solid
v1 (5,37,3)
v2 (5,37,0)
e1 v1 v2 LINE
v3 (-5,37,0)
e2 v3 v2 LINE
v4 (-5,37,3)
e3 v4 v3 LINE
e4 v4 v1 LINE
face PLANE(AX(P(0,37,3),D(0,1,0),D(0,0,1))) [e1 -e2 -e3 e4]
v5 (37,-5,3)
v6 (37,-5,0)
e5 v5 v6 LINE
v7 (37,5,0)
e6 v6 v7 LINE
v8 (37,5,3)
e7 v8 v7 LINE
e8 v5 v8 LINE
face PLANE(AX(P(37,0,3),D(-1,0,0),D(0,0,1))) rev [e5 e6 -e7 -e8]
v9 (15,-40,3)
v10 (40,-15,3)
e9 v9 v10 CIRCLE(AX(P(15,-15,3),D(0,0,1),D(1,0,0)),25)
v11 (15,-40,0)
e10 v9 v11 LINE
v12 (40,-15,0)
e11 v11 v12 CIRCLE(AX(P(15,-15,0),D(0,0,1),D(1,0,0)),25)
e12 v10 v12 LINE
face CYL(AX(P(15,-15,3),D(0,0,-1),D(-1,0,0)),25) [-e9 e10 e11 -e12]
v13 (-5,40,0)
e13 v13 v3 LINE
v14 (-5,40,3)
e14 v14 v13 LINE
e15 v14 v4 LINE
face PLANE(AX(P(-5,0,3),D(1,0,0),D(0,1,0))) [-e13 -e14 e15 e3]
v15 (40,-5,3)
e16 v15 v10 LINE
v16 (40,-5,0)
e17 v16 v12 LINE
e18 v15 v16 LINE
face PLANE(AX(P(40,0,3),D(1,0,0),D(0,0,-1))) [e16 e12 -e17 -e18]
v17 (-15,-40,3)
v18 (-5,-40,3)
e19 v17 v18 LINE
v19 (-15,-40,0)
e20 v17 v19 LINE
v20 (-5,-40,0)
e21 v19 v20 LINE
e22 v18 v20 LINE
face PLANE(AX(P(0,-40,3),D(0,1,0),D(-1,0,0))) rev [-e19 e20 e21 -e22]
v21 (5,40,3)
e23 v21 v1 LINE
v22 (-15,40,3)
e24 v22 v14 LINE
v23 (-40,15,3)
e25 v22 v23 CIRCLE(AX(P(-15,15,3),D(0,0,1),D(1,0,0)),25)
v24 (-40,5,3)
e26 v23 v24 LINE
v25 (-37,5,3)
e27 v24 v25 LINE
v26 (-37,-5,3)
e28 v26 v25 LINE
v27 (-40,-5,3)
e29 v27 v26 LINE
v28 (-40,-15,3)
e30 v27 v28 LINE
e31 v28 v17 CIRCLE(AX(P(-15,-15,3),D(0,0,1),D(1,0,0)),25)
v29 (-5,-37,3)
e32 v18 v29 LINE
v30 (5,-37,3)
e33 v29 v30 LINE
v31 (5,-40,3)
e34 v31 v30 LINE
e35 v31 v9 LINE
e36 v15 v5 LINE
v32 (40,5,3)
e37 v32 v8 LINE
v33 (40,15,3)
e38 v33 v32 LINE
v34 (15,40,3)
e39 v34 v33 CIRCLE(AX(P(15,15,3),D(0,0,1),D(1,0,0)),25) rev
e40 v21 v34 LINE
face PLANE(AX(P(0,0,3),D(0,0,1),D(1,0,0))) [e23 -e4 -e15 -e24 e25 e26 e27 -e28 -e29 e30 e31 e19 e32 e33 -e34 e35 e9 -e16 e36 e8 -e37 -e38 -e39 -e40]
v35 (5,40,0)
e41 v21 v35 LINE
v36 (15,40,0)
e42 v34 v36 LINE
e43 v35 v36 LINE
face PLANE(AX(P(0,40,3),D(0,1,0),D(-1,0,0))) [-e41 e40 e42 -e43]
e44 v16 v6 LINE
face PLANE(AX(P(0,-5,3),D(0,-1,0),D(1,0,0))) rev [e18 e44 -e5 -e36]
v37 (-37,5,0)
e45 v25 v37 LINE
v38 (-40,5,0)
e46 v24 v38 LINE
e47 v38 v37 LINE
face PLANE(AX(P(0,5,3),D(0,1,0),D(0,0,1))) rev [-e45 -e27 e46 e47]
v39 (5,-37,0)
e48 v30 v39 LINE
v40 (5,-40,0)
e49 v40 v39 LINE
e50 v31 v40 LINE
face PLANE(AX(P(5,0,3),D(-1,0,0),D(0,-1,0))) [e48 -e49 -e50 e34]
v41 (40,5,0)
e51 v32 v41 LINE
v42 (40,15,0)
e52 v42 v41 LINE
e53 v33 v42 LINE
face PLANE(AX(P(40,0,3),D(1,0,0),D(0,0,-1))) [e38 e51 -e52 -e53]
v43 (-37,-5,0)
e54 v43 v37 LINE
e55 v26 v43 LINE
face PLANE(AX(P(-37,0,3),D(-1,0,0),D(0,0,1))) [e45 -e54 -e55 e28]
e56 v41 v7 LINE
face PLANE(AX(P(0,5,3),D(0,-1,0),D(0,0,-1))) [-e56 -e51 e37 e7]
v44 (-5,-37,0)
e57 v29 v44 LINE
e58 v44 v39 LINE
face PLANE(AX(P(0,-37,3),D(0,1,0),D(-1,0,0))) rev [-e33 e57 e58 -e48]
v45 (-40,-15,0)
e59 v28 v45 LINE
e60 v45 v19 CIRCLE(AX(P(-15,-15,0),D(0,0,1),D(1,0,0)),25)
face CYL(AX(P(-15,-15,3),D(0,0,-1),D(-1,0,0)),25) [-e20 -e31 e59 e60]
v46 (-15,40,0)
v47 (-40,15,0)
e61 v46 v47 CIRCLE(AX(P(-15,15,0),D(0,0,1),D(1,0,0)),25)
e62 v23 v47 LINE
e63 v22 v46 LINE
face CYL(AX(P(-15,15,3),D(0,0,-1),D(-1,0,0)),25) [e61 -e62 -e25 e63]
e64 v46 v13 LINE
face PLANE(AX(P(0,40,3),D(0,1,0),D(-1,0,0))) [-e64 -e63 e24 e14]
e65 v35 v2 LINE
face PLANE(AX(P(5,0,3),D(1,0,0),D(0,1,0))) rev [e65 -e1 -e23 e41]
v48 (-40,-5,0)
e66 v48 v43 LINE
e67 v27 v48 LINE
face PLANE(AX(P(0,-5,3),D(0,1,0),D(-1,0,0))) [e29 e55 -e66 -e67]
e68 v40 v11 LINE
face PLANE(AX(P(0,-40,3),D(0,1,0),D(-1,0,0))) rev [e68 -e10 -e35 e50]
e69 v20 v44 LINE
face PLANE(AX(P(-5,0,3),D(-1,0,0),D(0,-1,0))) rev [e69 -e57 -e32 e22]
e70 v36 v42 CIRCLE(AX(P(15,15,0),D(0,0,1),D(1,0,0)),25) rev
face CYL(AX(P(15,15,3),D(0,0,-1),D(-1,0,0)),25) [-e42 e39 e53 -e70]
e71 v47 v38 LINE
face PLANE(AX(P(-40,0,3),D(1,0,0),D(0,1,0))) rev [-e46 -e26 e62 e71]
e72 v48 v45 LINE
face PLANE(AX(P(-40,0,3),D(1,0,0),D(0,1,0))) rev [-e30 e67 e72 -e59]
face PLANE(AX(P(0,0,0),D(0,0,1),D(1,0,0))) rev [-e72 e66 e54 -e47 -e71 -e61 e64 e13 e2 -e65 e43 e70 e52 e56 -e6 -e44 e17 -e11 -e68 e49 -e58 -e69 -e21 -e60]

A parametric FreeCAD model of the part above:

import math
import FreeCAD as App
import Part
import Sketcher
from FreeCAD import Vector

doc = App.newDocument("Part")
body = doc.addObject("PartDesign::Body", "Body")

# Sketch on XY plane
sketch1 = body.newObject("Sketcher::SketchObject", "Sketch")
sketch1.AttachmentSupport = (doc.getObject("XY_Plane"), [""])
sketch1.MapMode = "FlatFace"
sketch1.addGeometry(Part.LineSegment(Vector(-5, 40, 0), Vector(-15, 40, 0)), False)
sketch1.addGeometry(Part.ArcOfCircle(Part.Circle(Vector(-15, 15, 0), Vector(0, 0, 1), 25), math.radians(90), math.radians(180)), False)
sketch1.addGeometry(Part.LineSegment(Vector(-40, 15, 0), Vector(-40, 5, 0)), False)
sketch1.addGeometry(Part.LineSegment(Vector(-40, 5, 0), Vector(-37, 5, 0)), False)
sketch1.addGeometry(Part.LineSegment(Vector(-37, 5, 0), Vector(-37, -5, 0)), False)
sketch1.addGeometry(Part.LineSegment(Vector(-37, -5, 0), Vector(-40, -5, 0)), False)
sketch1.addGeometry(Part.LineSegment(Vector(-40, -5, 0), Vector(-40, -15, 0)), False)
sketch1.addGeometry(Part.ArcOfCircle(Part.Circle(Vector(-15, -15, 0), Vector(0, 0, 1), 25), math.radians(180), math.radians(270)), False)
sketch1.addGeometry(Part.LineSegment(Vector(-15, -40, 0), Vector(-5, -40, 0)), False)
sketch1.addGeometry(Part.LineSegment(Vector(-5, -40, 0), Vector(-5, -37, 0)), False)
sketch1.addGeometry(Part.LineSegment(Vector(-5, -37, 0), Vector(5, -37, 0)), False)
sketch1.addGeometry(Part.LineSegment(Vector(5, -37, 0), Vector(5, -40, 0)), False)
sketch1.addGeometry(Part.LineSegment(Vector(5, -40, 0), Vector(15, -40, 0)), False)
sketch1.addGeometry(Part.ArcOfCircle(Part.Circle(Vector(15, -15, 0), Vector(0, 0, 1), 25), math.radians(-90), math.radians(0)), False)
sketch1.addGeometry(Part.LineSegment(Vector(40, -15, 0), Vector(40, -5, 0)), False)
sketch1.addGeometry(Part.LineSegment(Vector(40, -5, 0), Vector(37, -5, 0)), False)
sketch1.addGeometry(Part.LineSegment(Vector(37, -5, 0), Vector(37, 5, 0)), False)
sketch1.addGeometry(Part.LineSegment(Vector(37, 5, 0), Vector(40, 5, 0)), False)
sketch1.addGeometry(Part.LineSegment(Vector(40, 5, 0), Vector(40, 15, 0)), False)
sketch1.addGeometry(Part.ArcOfCircle(Part.Circle(Vector(15, 15, 0), Vector(0, 0, 1), 25), math.radians(0), math.radians(90)), False)
sketch1.addGeometry(Part.LineSegment(Vector(15, 40, 0), Vector(5, 40, 0)), False)
sketch1.addGeometry(Part.LineSegment(Vector(5, 40, 0), Vector(5, 37, 0)), False)
sketch1.addGeometry(Part.LineSegment(Vector(5, 37, 0), Vector(-5, 37, 0)), False)
sketch1.addGeometry(Part.LineSegment(Vector(-5, 37, 0), Vector(-5, 40, 0)), False)
sketch1.addConstraint(Sketcher.Constraint("Tangent", 0, 2, 1, 1))
sketch1.addConstraint(Sketcher.Constraint("Tangent", 1, 2, 2, 1))
sketch1.addConstraint(Sketcher.Constraint("Coincident", 2, 2, 3, 1))
sketch1.addConstraint(Sketcher.Constraint("Coincident", 3, 2, 4, 1))
sketch1.addConstraint(Sketcher.Constraint("Coincident", 4, 2, 5, 1))
sketch1.addConstraint(Sketcher.Constraint("Coincident", 5, 2, 6, 1))
sketch1.addConstraint(Sketcher.Constraint("Tangent", 6, 2, 7, 1))
sketch1.addConstraint(Sketcher.Constraint("Tangent", 7, 2, 8, 1))
sketch1.addConstraint(Sketcher.Constraint("Coincident", 8, 2, 9, 1))
sketch1.addConstraint(Sketcher.Constraint("Coincident", 9, 2, 10, 1))
sketch1.addConstraint(Sketcher.Constraint("Coincident", 10, 2, 11, 1))
sketch1.addConstraint(Sketcher.Constraint("Coincident", 11, 2, 12, 1))
sketch1.addConstraint(Sketcher.Constraint("Tangent", 12, 2, 13, 1))
sketch1.addConstraint(Sketcher.Constraint("Tangent", 13, 2, 14, 1))
sketch1.addConstraint(Sketcher.Constraint("Coincident", 14, 2, 15, 1))
sketch1.addConstraint(Sketcher.Constraint("Coincident", 15, 2, 16, 1))
sketch1.addConstraint(Sketcher.Constraint("Coincident", 16, 2, 17, 1))
sketch1.addConstraint(Sketcher.Constraint("Coincident", 17, 2, 18, 1))
sketch1.addConstraint(Sketcher.Constraint("Tangent", 18, 2, 19, 1))
sketch1.addConstraint(Sketcher.Constraint("Tangent", 19, 2, 20, 1))
sketch1.addConstraint(Sketcher.Constraint("Coincident", 20, 2, 21, 1))
sketch1.addConstraint(Sketcher.Constraint("Coincident", 21, 2, 22, 1))
sketch1.addConstraint(Sketcher.Constraint("Coincident", 22, 2, 23, 1))
sketch1.addConstraint(Sketcher.Constraint("Coincident", 23, 2, 0, 1))
sketch1.addConstraint(Sketcher.Constraint("Horizontal", 0))
sketch1.addConstraint(Sketcher.Constraint("Vertical", 2))
sketch1.addConstraint(Sketcher.Constraint("Horizontal", 3))
sketch1.addConstraint(Sketcher.Constraint("Vertical", 4))
sketch1.addConstraint(Sketcher.Constraint("Horizontal", 5))
sketch1.addConstraint(Sketcher.Constraint("Vertical", 6))
sketch1.addConstraint(Sketcher.Constraint("Horizontal", 8))
sketch1.addConstraint(Sketcher.Constraint("Vertical", 9))
sketch1.addConstraint(Sketcher.Constraint("Horizontal", 10))
sketch1.addConstraint(Sketcher.Constraint("Vertical", 11))
sketch1.addConstraint(Sketcher.Constraint("Horizontal", 12))
sketch1.addConstraint(Sketcher.Constraint("Vertical", 14))
sketch1.addConstraint(Sketcher.Constraint("Horizontal", 15))
sketch1.addConstraint(Sketcher.Constraint("Vertical", 16))
sketch1.addConstraint(Sketcher.Constraint("Horizontal", 17))
sketch1.addConstraint(Sketcher.Constraint("Vertical", 18))
sketch1.addConstraint(Sketcher.Constraint("Horizontal", 20))
sketch1.addConstraint(Sketcher.Constraint("Vertical", 21))
sketch1.addConstraint(Sketcher.Constraint("Horizontal", 22))
sketch1.addConstraint(Sketcher.Constraint("Vertical", 23))
sketch1.addConstraint(Sketcher.Constraint("Equal", 1, 7))
sketch1.addConstraint(Sketcher.Constraint("Equal", 7, 13))
sketch1.addConstraint(Sketcher.Constraint("Equal", 13, 19))
sketch1.addConstraint(Sketcher.Constraint("Symmetric", 1, 3, 13, 3, -1, 1))
sketch1.addConstraint(Sketcher.Constraint("Symmetric", 7, 3, 19, 3, -1, 1))
sketch1.addConstraint(Sketcher.Constraint("Symmetric", 3, 2, 15, 2, -1, 1))
sketch1.addConstraint(Sketcher.Constraint("Symmetric", 9, 2, 21, 2, -1, 1))
sketch1.addConstraint(Sketcher.Constraint("Symmetric", 7, 3, 13, 3, -2))
sketch1.addConstraint(Sketcher.Constraint("Horizontal", 5, 2, 14, 2))
sketch1.addConstraint(Sketcher.Constraint("Horizontal", 3, 2, 16, 2))
sketch1.addConstraint(Sketcher.Constraint("Vertical", 11, 2, 20, 2))
sketch1.addConstraint(Sketcher.Constraint("Vertical", 9, 2, 22, 2))
sketch1.addConstraint(Sketcher.Constraint("Equal", 8, 10))
sketch1.addConstraint(Sketcher.Constraint("Equal", 22, 2))
sketch1.addConstraint(Sketcher.Constraint("Equal", 2, 4))
sketch1.addConstraint(Sketcher.Constraint("Equal", 17, 9))
sketch1.addConstraint(Sketcher.Constraint("Radius", 1, 25.0))
sketch1.addConstraint(Sketcher.Constraint("DistanceX", 0, 2, 0, 1, 10.0))
sketch1.addConstraint(Sketcher.Constraint("DistanceX", 3, 1, 3, 2, 3.0))
pad1 = body.newObject("PartDesign::Pad", "Pad")
pad1.Profile = sketch1
pad1.Length = 3

doc.recompute()
